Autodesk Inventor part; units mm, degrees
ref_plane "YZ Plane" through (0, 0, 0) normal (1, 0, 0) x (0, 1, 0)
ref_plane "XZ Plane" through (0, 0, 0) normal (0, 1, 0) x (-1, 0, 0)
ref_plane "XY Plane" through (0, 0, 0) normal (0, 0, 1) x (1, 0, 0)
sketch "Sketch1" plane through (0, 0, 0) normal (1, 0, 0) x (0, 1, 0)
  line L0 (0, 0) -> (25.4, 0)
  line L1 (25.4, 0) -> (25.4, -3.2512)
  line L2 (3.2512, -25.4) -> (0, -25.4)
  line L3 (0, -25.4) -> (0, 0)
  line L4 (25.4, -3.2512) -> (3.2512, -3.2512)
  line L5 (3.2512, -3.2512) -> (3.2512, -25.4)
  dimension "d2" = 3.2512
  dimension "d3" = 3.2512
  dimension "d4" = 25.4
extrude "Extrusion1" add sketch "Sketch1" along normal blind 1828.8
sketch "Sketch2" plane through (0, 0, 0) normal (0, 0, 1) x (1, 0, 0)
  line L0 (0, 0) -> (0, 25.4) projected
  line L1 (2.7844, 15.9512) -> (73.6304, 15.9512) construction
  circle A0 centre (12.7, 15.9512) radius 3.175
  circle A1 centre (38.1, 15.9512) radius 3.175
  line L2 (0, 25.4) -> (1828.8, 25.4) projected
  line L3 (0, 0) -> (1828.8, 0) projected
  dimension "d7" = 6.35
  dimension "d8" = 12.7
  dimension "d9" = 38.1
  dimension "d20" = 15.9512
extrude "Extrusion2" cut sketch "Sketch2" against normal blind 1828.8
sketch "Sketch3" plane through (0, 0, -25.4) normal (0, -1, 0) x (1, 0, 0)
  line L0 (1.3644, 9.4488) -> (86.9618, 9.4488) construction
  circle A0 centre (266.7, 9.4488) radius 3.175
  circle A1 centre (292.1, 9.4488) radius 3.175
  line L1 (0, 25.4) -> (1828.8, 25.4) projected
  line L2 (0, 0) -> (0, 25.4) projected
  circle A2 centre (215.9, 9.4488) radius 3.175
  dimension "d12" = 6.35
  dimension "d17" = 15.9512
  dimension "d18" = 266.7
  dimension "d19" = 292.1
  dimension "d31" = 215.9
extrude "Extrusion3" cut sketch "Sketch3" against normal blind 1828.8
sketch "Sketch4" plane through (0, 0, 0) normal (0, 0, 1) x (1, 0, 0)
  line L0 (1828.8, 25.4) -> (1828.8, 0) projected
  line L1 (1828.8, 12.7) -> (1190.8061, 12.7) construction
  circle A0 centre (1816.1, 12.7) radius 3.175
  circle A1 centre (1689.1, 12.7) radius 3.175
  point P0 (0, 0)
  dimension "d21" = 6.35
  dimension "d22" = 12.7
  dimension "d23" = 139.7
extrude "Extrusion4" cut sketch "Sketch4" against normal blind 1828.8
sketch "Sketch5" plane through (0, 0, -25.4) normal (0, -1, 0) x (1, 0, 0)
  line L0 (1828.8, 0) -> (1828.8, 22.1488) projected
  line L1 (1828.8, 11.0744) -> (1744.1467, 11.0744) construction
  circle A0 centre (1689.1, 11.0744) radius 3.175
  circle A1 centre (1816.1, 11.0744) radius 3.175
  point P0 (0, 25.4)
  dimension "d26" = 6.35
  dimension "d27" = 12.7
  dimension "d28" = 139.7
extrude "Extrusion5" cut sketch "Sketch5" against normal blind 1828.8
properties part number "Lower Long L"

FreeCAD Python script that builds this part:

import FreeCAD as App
import Part
import Sketcher
Q = App.Units.Quantity


def add_polygon(sketch, points):
    """Adds a closed chain of lines whose ends are joined by coincident constraints."""
    first, n = sketch.GeometryCount, len(points)
    for a, b in zip(points, points[1:] + points[:1]):
        sketch.addGeometry(Part.LineSegment(App.Vector(*a, 0), App.Vector(*b, 0)), False)
    for i in range(n):
        sketch.addConstraint(Sketcher.Constraint("Coincident", first + i, 2, first + (i + 1) % n, 1))

doc = App.newDocument("Part")
body = doc.addObject("PartDesign::Body", "Body")

# Sketch on YZ plane
sketch1 = body.newObject("Sketcher::SketchObject", "Sketch")
sketch1.AttachmentSupport = (doc.getObject("YZ_Plane"), [""])
sketch1.MapMode = "FlatFace"
add_polygon(sketch1, [(25.4, 0), (0, 0), (0, -25.4), (3.2512, -25.4), (3.2512, -3.2512), (25.4, -3.2512)])  # lines 0-5
sketch1.addConstraint(Sketcher.Constraint("Horizontal", 0))
sketch1.addConstraint(Sketcher.Constraint("Vertical", 1))
sketch1.addConstraint(Sketcher.Constraint("Horizontal", 2))
sketch1.addConstraint(Sketcher.Constraint("Vertical", 3))
sketch1.addConstraint(Sketcher.Constraint("Horizontal", 4))
sketch1.addConstraint(Sketcher.Constraint("Vertical", 5))
sketch1.addConstraint(Sketcher.Constraint("Coincident", 0, 2, -1, 1))
sketch1.addConstraint(Sketcher.Constraint("Equal", 0, 1))
sketch1.addConstraint(Sketcher.Constraint("Equal", 4, 3))
sketch1.addConstraint(Sketcher.Constraint("DistanceX", 0, 2, 0, 1, Q("1 in")))
sketch1.addConstraint(Sketcher.Constraint("DistanceX", 2, 1, 2, 2, Q("0.128 in")))
pad1 = body.newObject("PartDesign::Pad", "Pad")
pad1.Profile = sketch1
pad1.Length = Q("72 in")

# Sketch on XY plane
sketch2 = body.newObject("Sketcher::SketchObject", "Sketch001")
sketch2.AttachmentSupport = (doc.getObject("XY_Plane"), [""])
sketch2.MapMode = "FlatFace"
sketch2.addGeometry(Part.Circle(App.Vector(12.7, 15.9512, 0), App.Vector(0, 0, 1), 3.175), False)
sketch2.addGeometry(Part.Circle(App.Vector(38.1, 15.9512, 0), App.Vector(0, 0, 1), 3.175), False)
sketch2.addConstraint(Sketcher.Constraint("Equal", 0, 1))
sketch2.addConstraint(Sketcher.Constraint("Horizontal", 0, 3, 1, 3))
sketch2.addConstraint(Sketcher.Constraint("Diameter", 0, Q("0.25 in")))
sketch2.addConstraint(Sketcher.Constraint("DistanceX", -1, 1, 0, 3, Q("0.5 in")))
sketch2.addConstraint(Sketcher.Constraint("DistanceX", -1, 1, 1, 3, Q("1.5 in")))
sketch2.addConstraint(Sketcher.Constraint("DistanceY", -1, 1, 0, 3, Q("0.628 in")))
pocket1 = body.newObject("PartDesign::Pocket", "Pocket")
pocket1.Profile = sketch2
pocket1.Length = Q("72 in")

# Sketch on XZ plane
sketch3 = body.newObject("Sketcher::SketchObject", "Sketch002")
sketch3.AttachmentSupport = (doc.getObject("XZ_Plane"), [""])
sketch3.MapMode = "FlatFace"
sketch3.addGeometry(Part.Circle(App.Vector(266.7, -15.9512, 0), App.Vector(0, 0, 1), 3.175), False)
sketch3.addGeometry(Part.Circle(App.Vector(292.1, -15.9512, 0), App.Vector(0, 0, 1), 3.175), False)
sketch3.addGeometry(Part.Circle(App.Vector(215.9, -15.9512, 0), App.Vector(0, 0, 1), 3.175), False)
sketch3.addConstraint(Sketcher.Constraint("Equal", 0, 1))
sketch3.addConstraint(Sketcher.Constraint("Equal", 1, 2))
sketch3.addConstraint(Sketcher.Constraint("Horizontal", 0, 3, 1, 3))
sketch3.addConstraint(Sketcher.Constraint("Horizontal", 1, 3, 2, 3))
sketch3.addConstraint(Sketcher.Constraint("Diameter", 0, Q("0.25 in")))
sketch3.addConstraint(Sketcher.Constraint("DistanceX", -1, 1, 0, 3, Q("10.5 in")))
sketch3.addConstraint(Sketcher.Constraint("DistanceX", -1, 1, 1, 3, Q("11.5 in")))
sketch3.addConstraint(Sketcher.Constraint("DistanceX", -1, 1, 2, 3, Q("8.5 in")))
sketch3.addConstraint(Sketcher.Constraint("DistanceY", 0, 3, -1, 1, Q("0.628 in")))
pocket2 = body.newObject("PartDesign::Pocket", "Pocket001")
pocket2.Profile = sketch3
pocket2.Length = Q("72 in")

# Sketch on XY plane
sketch4 = body.newObject("Sketcher::SketchObject", "Sketch003")
sketch4.AttachmentSupport = (doc.getObject("XY_Plane"), [""])
sketch4.MapMode = "FlatFace"
sketch4.addGeometry(Part.Circle(App.Vector(1816.1, 12.7, 0), App.Vector(0, 0, 1), 3.175), False)
sketch4.addGeometry(Part.Circle(App.Vector(1689.1, 12.7, 0), App.Vector(0, 0, 1), 3.175), False)
sketch4.addConstraint(Sketcher.Constraint("Equal", 0, 1))
sketch4.addConstraint(Sketcher.Constraint("Horizontal", 0, 3, 1, 3))
sketch4.addConstraint(Sketcher.Constraint("Diameter", 0, Q("0.25 in")))
sketch4.addConstraint(Sketcher.Constraint("DistanceY", -1, 1, 0, 3, Q("0.5 in")))
sketch4.addConstraint(Sketcher.Constraint("DistanceX", 1, 3, 0, 3, Q("5 in")))
sketch4.addConstraint(Sketcher.Constraint("DistanceX", -1, 1, 0, 3, Q("71.5 in")))
pocket3 = body.newObject("PartDesign::Pocket", "Pocket002")
pocket3.Profile = sketch4
pocket3.Length = Q("72 in")

# Sketch on XZ plane
sketch5 = body.newObject("Sketcher::SketchObject", "Sketch004")
sketch5.AttachmentSupport = (doc.getObject("XZ_Plane"), [""])
sketch5.MapMode = "FlatFace"
sketch5.addGeometry(Part.Circle(App.Vector(1689.1, -14.3256, 0), App.Vector(0, 0, 1), 3.175), False)
sketch5.addGeometry(Part.Circle(App.Vector(1816.1, -14.3256, 0), App.Vector(0, 0, 1), 3.175), False)
sketch5.addConstraint(Sketcher.Constraint("Equal", 0, 1))
sketch5.addConstraint(Sketcher.Constraint("Horizontal", 0, 3, 1, 3))
sketch5.addConstraint(Sketcher.Constraint("Diameter", 0, Q("0.25 in")))
sketch5.addConstraint(Sketcher.Constraint("DistanceX", 0, 3, 1, 3, Q("5 in")))
sketch5.addConstraint(Sketcher.Constraint("DistanceX", -1, 1, 0, 3, Q("66.5 in")))
sketch5.addConstraint(Sketcher.Constraint("DistanceY", 0, 3, -1, 1, Q("0.564 in")))
pocket4 = body.newObject("PartDesign::Pocket", "Pocket003")
pocket4.Profile = sketch5
pocket4.Length = Q("72 in")

doc.recompute()
